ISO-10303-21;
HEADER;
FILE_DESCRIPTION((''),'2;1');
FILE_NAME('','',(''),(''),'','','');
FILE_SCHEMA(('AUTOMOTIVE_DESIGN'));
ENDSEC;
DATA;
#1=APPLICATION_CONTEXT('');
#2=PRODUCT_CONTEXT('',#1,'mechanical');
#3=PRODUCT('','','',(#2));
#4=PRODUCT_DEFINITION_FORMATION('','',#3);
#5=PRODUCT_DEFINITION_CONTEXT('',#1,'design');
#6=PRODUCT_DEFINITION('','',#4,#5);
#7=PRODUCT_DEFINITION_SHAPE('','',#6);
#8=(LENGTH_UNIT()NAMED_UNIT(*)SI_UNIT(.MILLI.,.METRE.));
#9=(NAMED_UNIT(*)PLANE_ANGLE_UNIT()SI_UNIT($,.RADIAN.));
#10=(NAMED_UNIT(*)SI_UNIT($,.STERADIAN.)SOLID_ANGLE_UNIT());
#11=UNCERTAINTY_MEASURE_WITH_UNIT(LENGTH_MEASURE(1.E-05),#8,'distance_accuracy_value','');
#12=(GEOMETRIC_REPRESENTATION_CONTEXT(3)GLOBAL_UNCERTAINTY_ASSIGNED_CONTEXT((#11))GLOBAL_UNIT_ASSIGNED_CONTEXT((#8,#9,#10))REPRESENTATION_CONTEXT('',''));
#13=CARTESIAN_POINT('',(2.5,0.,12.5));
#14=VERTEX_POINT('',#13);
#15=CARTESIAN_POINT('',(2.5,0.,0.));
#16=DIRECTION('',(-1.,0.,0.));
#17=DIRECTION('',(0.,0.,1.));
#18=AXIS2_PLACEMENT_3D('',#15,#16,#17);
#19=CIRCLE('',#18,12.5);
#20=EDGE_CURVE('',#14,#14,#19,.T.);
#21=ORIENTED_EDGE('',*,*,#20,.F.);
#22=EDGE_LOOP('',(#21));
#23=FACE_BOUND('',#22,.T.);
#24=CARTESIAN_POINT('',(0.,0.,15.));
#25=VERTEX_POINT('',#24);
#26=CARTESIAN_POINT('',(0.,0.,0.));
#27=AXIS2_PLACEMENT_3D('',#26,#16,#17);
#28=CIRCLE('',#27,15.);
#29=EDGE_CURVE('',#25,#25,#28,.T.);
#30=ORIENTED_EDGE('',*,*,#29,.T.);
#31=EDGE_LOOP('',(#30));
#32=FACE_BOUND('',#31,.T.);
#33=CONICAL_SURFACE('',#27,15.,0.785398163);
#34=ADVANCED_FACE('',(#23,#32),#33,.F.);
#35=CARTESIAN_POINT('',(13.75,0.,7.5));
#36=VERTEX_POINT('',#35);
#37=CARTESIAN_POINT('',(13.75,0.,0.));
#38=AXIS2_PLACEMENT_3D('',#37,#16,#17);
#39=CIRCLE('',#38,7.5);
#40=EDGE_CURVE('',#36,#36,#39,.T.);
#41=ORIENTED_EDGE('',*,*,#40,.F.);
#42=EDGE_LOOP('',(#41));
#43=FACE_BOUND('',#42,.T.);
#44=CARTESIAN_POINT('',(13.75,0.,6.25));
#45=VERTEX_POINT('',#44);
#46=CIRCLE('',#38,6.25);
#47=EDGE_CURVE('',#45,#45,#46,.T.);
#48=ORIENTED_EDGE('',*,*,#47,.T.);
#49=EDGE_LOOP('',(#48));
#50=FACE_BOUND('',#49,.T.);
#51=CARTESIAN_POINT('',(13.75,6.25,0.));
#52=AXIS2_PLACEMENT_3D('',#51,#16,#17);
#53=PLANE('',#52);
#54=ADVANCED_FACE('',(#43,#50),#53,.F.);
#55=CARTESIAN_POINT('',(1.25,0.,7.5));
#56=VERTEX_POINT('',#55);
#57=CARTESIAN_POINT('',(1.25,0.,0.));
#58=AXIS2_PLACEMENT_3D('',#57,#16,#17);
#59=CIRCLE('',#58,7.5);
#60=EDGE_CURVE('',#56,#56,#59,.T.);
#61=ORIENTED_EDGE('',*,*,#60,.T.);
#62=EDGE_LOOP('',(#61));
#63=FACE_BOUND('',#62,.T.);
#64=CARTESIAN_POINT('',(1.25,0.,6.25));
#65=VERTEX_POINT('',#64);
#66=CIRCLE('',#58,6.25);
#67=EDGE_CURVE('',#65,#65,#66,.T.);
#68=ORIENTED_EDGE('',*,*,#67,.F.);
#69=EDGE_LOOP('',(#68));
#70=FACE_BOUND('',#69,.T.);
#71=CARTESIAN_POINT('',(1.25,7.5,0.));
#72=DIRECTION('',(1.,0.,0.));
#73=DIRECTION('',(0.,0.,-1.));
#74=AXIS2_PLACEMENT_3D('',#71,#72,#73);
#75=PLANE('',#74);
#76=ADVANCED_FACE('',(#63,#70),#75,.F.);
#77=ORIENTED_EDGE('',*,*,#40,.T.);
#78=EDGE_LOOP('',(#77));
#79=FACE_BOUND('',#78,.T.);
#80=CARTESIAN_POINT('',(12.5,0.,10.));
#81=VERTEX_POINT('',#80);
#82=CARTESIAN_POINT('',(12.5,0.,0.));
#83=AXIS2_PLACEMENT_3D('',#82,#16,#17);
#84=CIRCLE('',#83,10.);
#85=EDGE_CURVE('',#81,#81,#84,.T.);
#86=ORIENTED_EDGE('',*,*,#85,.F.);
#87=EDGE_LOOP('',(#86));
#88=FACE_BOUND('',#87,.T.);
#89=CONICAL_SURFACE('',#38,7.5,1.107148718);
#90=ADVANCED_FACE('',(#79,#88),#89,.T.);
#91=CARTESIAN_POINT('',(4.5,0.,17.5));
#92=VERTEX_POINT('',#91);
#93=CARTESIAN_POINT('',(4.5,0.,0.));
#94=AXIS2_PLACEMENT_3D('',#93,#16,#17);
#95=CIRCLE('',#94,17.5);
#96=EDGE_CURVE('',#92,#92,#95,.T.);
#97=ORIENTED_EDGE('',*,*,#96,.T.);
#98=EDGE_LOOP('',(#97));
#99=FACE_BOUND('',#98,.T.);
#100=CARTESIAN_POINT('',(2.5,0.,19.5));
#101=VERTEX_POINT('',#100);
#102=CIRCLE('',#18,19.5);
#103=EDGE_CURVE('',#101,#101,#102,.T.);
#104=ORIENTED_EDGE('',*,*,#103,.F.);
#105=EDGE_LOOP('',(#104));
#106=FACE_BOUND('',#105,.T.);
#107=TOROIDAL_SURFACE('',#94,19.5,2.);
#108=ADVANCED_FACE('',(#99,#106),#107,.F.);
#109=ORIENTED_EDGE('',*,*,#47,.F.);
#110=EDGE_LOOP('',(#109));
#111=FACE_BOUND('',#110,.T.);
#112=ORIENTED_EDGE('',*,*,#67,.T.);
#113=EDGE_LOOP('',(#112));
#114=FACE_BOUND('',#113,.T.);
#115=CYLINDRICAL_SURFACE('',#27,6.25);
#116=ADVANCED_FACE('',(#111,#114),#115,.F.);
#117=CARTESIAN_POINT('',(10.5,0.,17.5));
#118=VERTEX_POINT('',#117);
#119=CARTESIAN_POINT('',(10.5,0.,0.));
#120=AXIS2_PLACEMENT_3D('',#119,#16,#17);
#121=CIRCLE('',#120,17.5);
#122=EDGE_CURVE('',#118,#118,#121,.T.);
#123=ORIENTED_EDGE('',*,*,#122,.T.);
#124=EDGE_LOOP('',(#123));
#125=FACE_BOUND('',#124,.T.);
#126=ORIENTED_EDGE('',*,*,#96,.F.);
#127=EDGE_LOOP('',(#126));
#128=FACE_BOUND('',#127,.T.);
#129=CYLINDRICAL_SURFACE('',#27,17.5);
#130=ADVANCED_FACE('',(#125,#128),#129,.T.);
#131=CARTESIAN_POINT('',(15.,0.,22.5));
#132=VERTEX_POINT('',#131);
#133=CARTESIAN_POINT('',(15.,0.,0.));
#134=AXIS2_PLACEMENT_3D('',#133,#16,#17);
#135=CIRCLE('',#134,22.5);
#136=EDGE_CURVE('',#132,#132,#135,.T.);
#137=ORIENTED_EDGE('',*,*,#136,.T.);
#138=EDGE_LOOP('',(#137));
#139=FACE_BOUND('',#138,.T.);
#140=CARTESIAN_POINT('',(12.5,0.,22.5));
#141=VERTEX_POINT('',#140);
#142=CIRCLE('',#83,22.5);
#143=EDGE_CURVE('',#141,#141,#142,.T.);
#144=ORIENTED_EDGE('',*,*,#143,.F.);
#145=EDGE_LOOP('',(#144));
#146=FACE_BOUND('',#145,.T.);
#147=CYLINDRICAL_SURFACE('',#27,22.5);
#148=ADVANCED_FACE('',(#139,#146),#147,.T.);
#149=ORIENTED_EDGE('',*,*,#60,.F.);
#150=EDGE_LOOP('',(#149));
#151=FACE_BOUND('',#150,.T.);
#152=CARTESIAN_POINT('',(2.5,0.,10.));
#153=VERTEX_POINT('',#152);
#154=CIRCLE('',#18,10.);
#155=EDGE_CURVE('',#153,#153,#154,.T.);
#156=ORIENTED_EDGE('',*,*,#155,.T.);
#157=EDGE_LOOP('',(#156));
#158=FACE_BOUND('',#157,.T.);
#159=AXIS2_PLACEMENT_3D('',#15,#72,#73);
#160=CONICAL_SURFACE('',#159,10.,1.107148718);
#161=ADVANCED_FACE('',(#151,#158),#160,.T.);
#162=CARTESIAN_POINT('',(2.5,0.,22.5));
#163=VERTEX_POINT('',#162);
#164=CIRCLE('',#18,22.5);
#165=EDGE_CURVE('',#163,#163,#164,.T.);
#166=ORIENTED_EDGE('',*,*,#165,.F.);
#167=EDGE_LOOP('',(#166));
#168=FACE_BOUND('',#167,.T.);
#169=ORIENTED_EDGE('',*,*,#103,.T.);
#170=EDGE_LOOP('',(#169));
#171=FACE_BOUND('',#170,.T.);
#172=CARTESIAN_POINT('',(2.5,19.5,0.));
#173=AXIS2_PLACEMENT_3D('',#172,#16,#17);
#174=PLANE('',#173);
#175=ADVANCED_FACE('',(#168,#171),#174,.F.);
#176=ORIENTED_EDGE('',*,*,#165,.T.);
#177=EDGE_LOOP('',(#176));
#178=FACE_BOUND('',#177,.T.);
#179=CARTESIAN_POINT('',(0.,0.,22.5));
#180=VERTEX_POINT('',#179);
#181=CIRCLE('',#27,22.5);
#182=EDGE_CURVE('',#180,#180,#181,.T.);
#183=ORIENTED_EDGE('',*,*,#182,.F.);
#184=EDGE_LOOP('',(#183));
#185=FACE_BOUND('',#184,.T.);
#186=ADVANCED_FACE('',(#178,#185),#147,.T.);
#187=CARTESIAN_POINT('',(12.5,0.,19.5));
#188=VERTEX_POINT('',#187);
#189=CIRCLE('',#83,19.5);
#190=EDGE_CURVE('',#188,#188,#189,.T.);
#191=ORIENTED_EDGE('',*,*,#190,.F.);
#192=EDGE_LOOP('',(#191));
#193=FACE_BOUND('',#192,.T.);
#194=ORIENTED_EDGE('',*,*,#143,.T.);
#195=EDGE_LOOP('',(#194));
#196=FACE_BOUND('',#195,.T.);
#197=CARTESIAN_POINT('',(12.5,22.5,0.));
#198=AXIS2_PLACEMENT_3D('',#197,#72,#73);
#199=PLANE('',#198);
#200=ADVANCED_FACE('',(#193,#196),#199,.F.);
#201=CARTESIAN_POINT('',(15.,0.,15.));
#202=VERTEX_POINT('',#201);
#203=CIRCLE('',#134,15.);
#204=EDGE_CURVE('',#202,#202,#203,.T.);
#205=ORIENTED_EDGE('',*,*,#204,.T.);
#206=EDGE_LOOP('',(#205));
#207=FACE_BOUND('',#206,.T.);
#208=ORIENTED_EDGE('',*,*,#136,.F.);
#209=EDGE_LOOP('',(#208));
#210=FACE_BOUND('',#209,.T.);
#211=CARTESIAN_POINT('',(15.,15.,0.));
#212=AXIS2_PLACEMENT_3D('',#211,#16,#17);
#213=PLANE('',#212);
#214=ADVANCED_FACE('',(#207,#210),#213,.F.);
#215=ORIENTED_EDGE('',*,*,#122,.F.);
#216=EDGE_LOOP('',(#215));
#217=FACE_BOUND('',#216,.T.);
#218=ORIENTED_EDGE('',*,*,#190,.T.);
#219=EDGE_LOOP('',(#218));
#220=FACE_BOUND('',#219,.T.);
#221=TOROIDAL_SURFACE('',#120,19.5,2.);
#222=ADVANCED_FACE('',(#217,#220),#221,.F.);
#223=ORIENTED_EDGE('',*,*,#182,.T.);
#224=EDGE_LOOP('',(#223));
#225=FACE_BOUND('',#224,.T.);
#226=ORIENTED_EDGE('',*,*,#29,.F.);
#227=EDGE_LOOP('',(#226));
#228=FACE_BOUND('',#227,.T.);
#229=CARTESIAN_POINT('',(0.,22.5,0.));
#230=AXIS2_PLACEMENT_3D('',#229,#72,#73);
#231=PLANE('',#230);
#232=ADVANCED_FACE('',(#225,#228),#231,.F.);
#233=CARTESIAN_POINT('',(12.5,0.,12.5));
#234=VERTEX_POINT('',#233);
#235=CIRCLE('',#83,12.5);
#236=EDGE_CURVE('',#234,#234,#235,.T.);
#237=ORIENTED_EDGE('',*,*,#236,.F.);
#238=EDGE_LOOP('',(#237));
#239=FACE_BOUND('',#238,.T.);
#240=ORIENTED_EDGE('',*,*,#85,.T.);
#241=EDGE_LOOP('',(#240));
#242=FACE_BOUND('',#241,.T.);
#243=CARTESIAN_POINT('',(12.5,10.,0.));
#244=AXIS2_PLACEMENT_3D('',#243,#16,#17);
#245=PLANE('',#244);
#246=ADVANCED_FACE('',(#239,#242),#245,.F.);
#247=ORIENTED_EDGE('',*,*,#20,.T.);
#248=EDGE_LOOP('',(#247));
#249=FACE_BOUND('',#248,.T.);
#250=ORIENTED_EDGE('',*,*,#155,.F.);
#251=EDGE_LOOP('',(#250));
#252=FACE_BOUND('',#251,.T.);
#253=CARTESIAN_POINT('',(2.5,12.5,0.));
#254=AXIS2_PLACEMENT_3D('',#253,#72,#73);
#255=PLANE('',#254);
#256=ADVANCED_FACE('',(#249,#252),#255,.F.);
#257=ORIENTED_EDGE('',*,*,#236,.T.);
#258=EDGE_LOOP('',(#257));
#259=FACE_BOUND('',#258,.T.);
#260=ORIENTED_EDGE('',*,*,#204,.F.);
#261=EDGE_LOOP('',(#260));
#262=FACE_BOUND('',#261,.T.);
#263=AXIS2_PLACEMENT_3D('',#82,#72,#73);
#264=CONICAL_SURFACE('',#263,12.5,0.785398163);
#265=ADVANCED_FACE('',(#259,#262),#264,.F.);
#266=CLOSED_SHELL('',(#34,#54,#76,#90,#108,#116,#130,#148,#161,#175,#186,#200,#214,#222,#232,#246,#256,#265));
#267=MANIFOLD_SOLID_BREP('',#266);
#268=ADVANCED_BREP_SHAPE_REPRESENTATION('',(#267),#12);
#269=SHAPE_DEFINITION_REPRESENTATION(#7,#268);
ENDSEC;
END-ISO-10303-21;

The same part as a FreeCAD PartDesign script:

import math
import FreeCAD as App
import Part
import Sketcher
from FreeCAD import Vector

doc = App.newDocument("Part")
body = doc.addObject("PartDesign::Body", "Body")

sketch1 = body.newObject("Sketcher::SketchObject", "Sketch")
sketch1.AttachmentSupport = (doc.getObject("XY_Plane"), [""])
sketch1.MapMode = "FlatFace"
sketch1.addGeometry(Part.LineSegment(Vector(1.2, 6.2, 0), Vector(13.8, 6.2, 0)), False)
sketch1.addGeometry(Part.LineSegment(Vector(13.8, 6.2, 0), Vector(13.8, 7.5, 0)), False)
sketch1.addGeometry(Part.LineSegment(Vector(13.8, 7.5, 0), Vector(12.5, 10, 0)), False)
sketch1.addGeometry(Part.LineSegment(Vector(12.5, 10, 0), Vector(12.5, 12.5, 0)), False)
sketch1.addGeometry(Part.LineSegment(Vector(12.5, 12.5, 0), Vector(15, 15, 0)), False)
sketch1.addGeometry(Part.LineSegment(Vector(15, 15, 0), Vector(15, 22.5, 0)), False)
sketch1.addGeometry(Part.LineSegment(Vector(15, 22.5, 0), Vector(12.5, 22.5, 0)), False)
sketch1.addGeometry(Part.LineSegment(Vector(12.5, 22.5, 0), Vector(12.5, 19.5, 0)), False)
sketch1.addGeometry(Part.ArcOfCircle(Part.Circle(Vector(10.5, 19.5, 0), Vector(0, 0, 1), 2), math.radians(-90), math.radians(0)), False)
sketch1.addGeometry(Part.LineSegment(Vector(10.5, 17.5, 0), Vector(4.5, 17.5, 0)), False)
sketch1.addGeometry(Part.ArcOfCircle(Part.Circle(Vector(4.5, 19.5, 0), Vector(0, 0, 1), 2), math.radians(-180), math.radians(-90)), False)
sketch1.addGeometry(Part.LineSegment(Vector(2.5, 19.5, 0), Vector(2.5, 22.5, 0)), False)
sketch1.addGeometry(Part.LineSegment(Vector(2.5, 22.5, 0), Vector(0, 22.5, 0)), False)
sketch1.addGeometry(Part.LineSegment(Vector(0, 22.5, 0), Vector(0, 15, 0)), False)
sketch1.addGeometry(Part.LineSegment(Vector(0, 15, 0), Vector(2.5, 12.5, 0)), False)
sketch1.addGeometry(Part.LineSegment(Vector(2.5, 12.5, 0), Vector(2.5, 10, 0)), False)
sketch1.addGeometry(Part.LineSegment(Vector(2.5, 10, 0), Vector(1.2, 7.5, 0)), False)
sketch1.addGeometry(Part.LineSegment(Vector(1.2, 7.5, 0), Vector(1.2, 6.2, 0)), False)
sketch1.addConstraint(Sketcher.Constraint("Coincident", 0, 2, 1, 1))
sketch1.addConstraint(Sketcher.Constraint("Coincident", 1, 2, 2, 1))
sketch1.addConstraint(Sketcher.Constraint("Coincident", 2, 2, 3, 1))
sketch1.addConstraint(Sketcher.Constraint("Coincident", 3, 2, 4, 1))
sketch1.addConstraint(Sketcher.Constraint("Coincident", 4, 2, 5, 1))
sketch1.addConstraint(Sketcher.Constraint("Coincident", 5, 2, 6, 1))
sketch1.addConstraint(Sketcher.Constraint("Coincident", 6, 2, 7, 1))
sketch1.addConstraint(Sketcher.Constraint("Tangent", 7, 2, 8, 2))
sketch1.addConstraint(Sketcher.Constraint("Tangent", 8, 1, 9, 1))
sketch1.addConstraint(Sketcher.Constraint("Tangent", 9, 2, 10, 2))
sketch1.addConstraint(Sketcher.Constraint("Tangent", 10, 1, 11, 1))
sketch1.addConstraint(Sketcher.Constraint("Coincident", 11, 2, 12, 1))
sketch1.addConstraint(Sketcher.Constraint("Coincident", 12, 2, 13, 1))
sketch1.addConstraint(Sketcher.Constraint("Coincident", 13, 2, 14, 1))
sketch1.addConstraint(Sketcher.Constraint("Coincident", 14, 2, 15, 1))
sketch1.addConstraint(Sketcher.Constraint("Coincident", 15, 2, 16, 1))
sketch1.addConstraint(Sketcher.Constraint("Coincident", 16, 2, 17, 1))
sketch1.addConstraint(Sketcher.Constraint("Coincident", 17, 2, 0, 1))
sketch1.addConstraint(Sketcher.Constraint("Horizontal", 0))
sketch1.addConstraint(Sketcher.Constraint("Vertical", 1))
sketch1.addConstraint(Sketcher.Constraint("Vertical", 3))
sketch1.addConstraint(Sketcher.Constraint("Vertical", 5))
sketch1.addConstraint(Sketcher.Constraint("Horizontal", 6))
sketch1.addConstraint(Sketcher.Constraint("Vertical", 7))
sketch1.addConstraint(Sketcher.Constraint("Horizontal", 9))
sketch1.addConstraint(Sketcher.Constraint("Vertical", 11))
sketch1.addConstraint(Sketcher.Constraint("Horizontal", 12))
sketch1.addConstraint(Sketcher.Constraint("Vertical", 13))
sketch1.addConstraint(Sketcher.Constraint("Vertical", 15))
sketch1.addConstraint(Sketcher.Constraint("Vertical", 17))
sketch1.addConstraint(Sketcher.Constraint("Equal", 8, 10))
sketch1.addConstraint(Sketcher.Constraint("PointOnObject", 12, 2, -2))
sketch1.addConstraint(Sketcher.Constraint("Perpendicular", 4, 14))
sketch1.addConstraint(Sketcher.Constraint("Horizontal", 6, 2, 11, 2))
sketch1.addConstraint(Sketcher.Constraint("Horizontal", 4, 2, 13, 2))
sketch1.addConstraint(Sketcher.Constraint("Horizontal", 3, 2, 14, 2))
sketch1.addConstraint(Sketcher.Constraint("Horizontal", 2, 2, 15, 2))
sketch1.addConstraint(Sketcher.Constraint("Horizontal", 1, 2, 16, 2))
sketch1.addConstraint(Sketcher.Constraint("Vertical", 3, 2, 6, 2))
sketch1.addConstraint(Sketcher.Constraint("Vertical", 11, 2, 14, 2))
sketch1.addConstraint(Sketcher.Constraint("Equal", 6, 12))
sketch1.addConstraint(Sketcher.Constraint("Equal", 12, 3))
sketch1.addConstraint(Sketcher.Constraint("Equal", 2, 16))
sketch1.addConstraint(Sketcher.Constraint("Radius", 8, 2.0))
sketch1.addConstraint(Sketcher.Constraint("DistanceX", 9, 2, 9, 1, 6.0))
sketch1.addConstraint(Sketcher.Constraint("DistanceY", 7, 2, 7, 1, 3.0))
sketch1.addConstraint(Sketcher.Constraint("DistanceX", 0, 1, 0, 2, 12.5))
sketch1.addConstraint(Sketcher.Constraint("DistanceX", 6, 2, 6, 1, 2.5))
sketch1.addConstraint(Sketcher.Constraint("DistanceY", 5, 1, 5, 2, 7.5))
sketch1.addConstraint(Sketcher.Constraint("DistanceY", -1, 1, 2, 2, 10.0))
sketch1.addConstraint(Sketcher.Constraint("DistanceY", 1, 2, 8, 3, 12.0))
sketch1.addConstraint(Sketcher.Constraint("DistanceY", 1, 1, 1, 2, 1.25))
revolution = body.newObject("PartDesign::Revolution", "Revolution")
revolution.Profile = sketch1
revolution.ReferenceAxis = (sketch1, ["H_Axis"])
revolution.Angle = 360

doc.recompute()
